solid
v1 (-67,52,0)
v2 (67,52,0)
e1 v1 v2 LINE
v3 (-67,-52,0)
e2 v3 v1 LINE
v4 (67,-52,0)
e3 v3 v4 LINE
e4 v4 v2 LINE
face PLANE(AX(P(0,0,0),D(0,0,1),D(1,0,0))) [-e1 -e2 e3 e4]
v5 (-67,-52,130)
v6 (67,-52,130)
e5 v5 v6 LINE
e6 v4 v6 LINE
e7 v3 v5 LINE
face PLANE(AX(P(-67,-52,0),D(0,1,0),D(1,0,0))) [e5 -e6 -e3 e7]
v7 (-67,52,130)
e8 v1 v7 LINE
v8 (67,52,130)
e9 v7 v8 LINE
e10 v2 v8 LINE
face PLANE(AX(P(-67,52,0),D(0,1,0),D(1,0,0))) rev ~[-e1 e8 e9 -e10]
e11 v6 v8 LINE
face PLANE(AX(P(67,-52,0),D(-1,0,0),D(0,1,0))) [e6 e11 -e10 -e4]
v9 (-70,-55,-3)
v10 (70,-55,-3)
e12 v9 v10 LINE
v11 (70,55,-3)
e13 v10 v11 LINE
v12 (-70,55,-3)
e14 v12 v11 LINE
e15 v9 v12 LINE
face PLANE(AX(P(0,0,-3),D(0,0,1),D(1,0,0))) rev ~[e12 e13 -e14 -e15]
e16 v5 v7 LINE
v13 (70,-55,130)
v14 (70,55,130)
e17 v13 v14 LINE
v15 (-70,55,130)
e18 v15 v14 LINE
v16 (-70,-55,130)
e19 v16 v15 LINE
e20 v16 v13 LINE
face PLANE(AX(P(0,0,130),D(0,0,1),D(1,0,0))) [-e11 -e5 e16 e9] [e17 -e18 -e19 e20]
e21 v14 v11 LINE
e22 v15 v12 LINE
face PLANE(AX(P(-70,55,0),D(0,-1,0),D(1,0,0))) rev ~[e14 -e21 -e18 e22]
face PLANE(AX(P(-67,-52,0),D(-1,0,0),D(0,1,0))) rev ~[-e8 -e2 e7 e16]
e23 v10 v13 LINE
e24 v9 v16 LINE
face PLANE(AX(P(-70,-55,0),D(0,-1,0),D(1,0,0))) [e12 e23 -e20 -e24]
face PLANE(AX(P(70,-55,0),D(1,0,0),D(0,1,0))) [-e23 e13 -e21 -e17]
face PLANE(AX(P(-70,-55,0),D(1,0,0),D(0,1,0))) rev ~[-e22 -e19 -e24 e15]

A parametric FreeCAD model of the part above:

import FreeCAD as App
import Part
import Sketcher

V = App.Vector
Q = App.Units.Quantity


def add_polygon(sketch, points):
    """Adds a closed chain of lines whose ends are joined by coincident constraints."""
    first, n = sketch.GeometryCount, len(points)
    for a, b in zip(points, points[1:] + points[:1]):
        sketch.addGeometry(Part.LineSegment(App.Vector(*a, 0), App.Vector(*b, 0)), False)
    for i in range(n):
        sketch.addConstraint(Sketcher.Constraint("Coincident", first + i, 2, first + (i + 1) % n, 1))

doc = App.newDocument("Part")
params = doc.addObject("Spreadsheet::Sheet", "Params")
for row, (alias, value) in enumerate([
    ("sketch1_width", "140 mm"),
    ("sketch1_width2", "134 mm"),
    ("sketch1_height", "110 mm"),
    ("sketch1_height2", "104 mm"),
    ("pad1_length", "130 mm"),
    ("sketch2_width", "140 mm"),
    ("sketch2_height", "110 mm"),
    ("pad2_length", "3 mm"),
], start=1):
    params.set(f"A{row}", alias)
    params.set(f"B{row}", "=" + value)
    params.setAlias(f"B{row}", alias)

body = doc.addObject("PartDesign::Body", "Body")

sketch1 = body.newObject("Sketcher::SketchObject", "Sketch")
sketch1.AttachmentSupport = (doc.getObject("XY_Plane"), [""])
sketch1.MapMode = "FlatFace"
add_polygon(sketch1, [(-70, 55), (-70, -55), (70, -55), (70, 55)])
add_polygon(sketch1, [(67, -52), (-67, -52), (-67, 52), (67, 52)])
sketch1.addConstraint(Sketcher.Constraint("Vertical", 0))
sketch1.addConstraint(Sketcher.Constraint("Horizontal", 1))
sketch1.addConstraint(Sketcher.Constraint("Vertical", 2))
sketch1.addConstraint(Sketcher.Constraint("Horizontal", 3))
sketch1.addConstraint(Sketcher.Constraint("Horizontal", 4))
sketch1.addConstraint(Sketcher.Constraint("Vertical", 5))
sketch1.addConstraint(Sketcher.Constraint("Horizontal", 6))
sketch1.addConstraint(Sketcher.Constraint("Vertical", 7))
sketch1.addConstraint(Sketcher.Constraint("Symmetric", 0, 2, 2, 2, -1, 1))
sketch1.addConstraint(Sketcher.Constraint("Symmetric", 4, 2, 6, 2, -1, 1))
sketch1.addConstraint(Sketcher.Constraint("DistanceX", 1, 1, 1, 2, Q("140 mm")))
sketch1.addConstraint(Sketcher.Constraint("DistanceX", 4, 2, 4, 1, Q("134 mm")))
sketch1.addConstraint(Sketcher.Constraint("DistanceY", 0, 2, 0, 1, Q("110 mm")))
sketch1.addConstraint(Sketcher.Constraint("DistanceY", 5, 1, 5, 2, Q("104 mm")))
sketch1.setExpression("Constraints[18]", "Params.sketch1_width")
sketch1.setExpression("Constraints[19]", "Params.sketch1_width2")
sketch1.setExpression("Constraints[20]", "Params.sketch1_height")
sketch1.setExpression("Constraints[21]", "Params.sketch1_height2")
pad1 = body.newObject("PartDesign::Pad", "Pad")
pad1.Profile = sketch1
pad1.setExpression("Length", "Params.pad1_length")

sketch2 = body.newObject("Sketcher::SketchObject", "Sketch001")
sketch2.AttachmentSupport = (doc.getObject("XY_Plane"), [""])
sketch2.MapMode = "FlatFace"
add_polygon(sketch2, [(-70, 55), (-70, -55), (70, -55), (70, 55)])
sketch2.addConstraint(Sketcher.Constraint("Vertical", 0))
sketch2.addConstraint(Sketcher.Constraint("Horizontal", 1))
sketch2.addConstraint(Sketcher.Constraint("Vertical", 2))
sketch2.addConstraint(Sketcher.Constraint("Horizontal", 3))
sketch2.addConstraint(Sketcher.Constraint("Symmetric", 0, 2, 2, 2, -1, 1))
sketch2.addConstraint(Sketcher.Constraint("DistanceX", 1, 1, 1, 2, Q("140 mm")))
sketch2.addConstraint(Sketcher.Constraint("DistanceY", 0, 2, 0, 1, Q("110 mm")))
sketch2.setExpression("Constraints[9]", "Params.sketch2_width")
sketch2.setExpression("Constraints[10]", "Params.sketch2_height")
pad2 = body.newObject("PartDesign::Pad", "Pad001")
pad2.Profile = sketch2
pad2.setExpression("Length", "Params.pad2_length")
pad2.Reversed = True

doc.recompute()
